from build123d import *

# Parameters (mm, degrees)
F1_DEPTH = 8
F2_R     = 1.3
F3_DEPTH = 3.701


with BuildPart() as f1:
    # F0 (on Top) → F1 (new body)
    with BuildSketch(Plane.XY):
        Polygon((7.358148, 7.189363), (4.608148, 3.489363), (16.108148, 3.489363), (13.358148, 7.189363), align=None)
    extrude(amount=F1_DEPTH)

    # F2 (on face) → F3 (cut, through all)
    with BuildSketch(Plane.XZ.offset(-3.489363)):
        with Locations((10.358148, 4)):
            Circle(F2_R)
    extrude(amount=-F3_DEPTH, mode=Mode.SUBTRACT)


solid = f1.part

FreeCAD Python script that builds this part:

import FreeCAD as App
import Part
import Sketcher

V = App.Vector
Q = App.Units.Quantity


def add_polygon(sketch, points):
    """Adds a closed chain of lines whose ends are joined by coincident constraints."""
    first, n = sketch.GeometryCount, len(points)
    for a, b in zip(points, points[1:] + points[:1]):
        sketch.addGeometry(Part.LineSegment(App.Vector(*a, 0), App.Vector(*b, 0)), False)
    for i in range(n):
        sketch.addConstraint(Sketcher.Constraint("Coincident", first + i, 2, first + (i + 1) % n, 1))

doc = App.newDocument("Part")
params = doc.addObject("Spreadsheet::Sheet", "Params")
for row, (alias, value) in enumerate([
    ("sketch1_width", "6 mm"),
    ("sketch1_width2", "11.5 mm"),
    ("pad1_length", "8 mm"),
    ("sketch2_diameter", "2.6 mm"),
], start=1):
    params.set(f"A{row}", alias)
    params.set(f"B{row}", "=" + value)
    params.setAlias(f"B{row}", alias)

body = doc.addObject("PartDesign::Body", "Body")

# Sketch on XY plane
sketch1 = doc.addObject("Sketcher::SketchObject", "Sketch")
body.addObject(sketch1)
sketch1.AttachmentSupport = (doc.XY_Plane, [""])
sketch1.MapMode = "FlatFace"
add_polygon(sketch1, [(7.358148, 7.189363), (4.608148, 3.489363), (16.108148, 3.489363), (13.358148, 7.189363)])  # lines 0-3
sketch1.addConstraint([
    Sketcher.Constraint("Horizontal", 1),
    Sketcher.Constraint("Horizontal", 3),
    Sketcher.Constraint("Equal", 0, 2),
    Sketcher.Constraint("DistanceX", 3, 2, 3, 1, Q("6 mm")),
    Sketcher.Constraint("DistanceX", 1, 1, 1, 2, Q("11.5 mm")),
    Sketcher.Constraint("DistanceY", 1, 2, 2, 2, Q("3.7 mm")),
    Sketcher.Constraint("DistanceX", -1, 1, 1, 2, Q("16.108148 mm")),
    Sketcher.Constraint("DistanceY", -1, 1, 0, 2, Q("3.489363 mm")),
])
sketch1.setExpression("Constraints[7]", "Params.sketch1_width")
sketch1.setExpression("Constraints[8]", "Params.sketch1_width2")
pad1 = doc.addObject("PartDesign::Pad", "Pad")
body.addObject(pad1)
pad1.Profile = sketch1
pad1.setExpression("Length", "Params.pad1_length")

# Sketch on XZ plane
sketch2 = doc.addObject("Sketcher::SketchObject", "Sketch001")
body.addObject(sketch2)
sketch2.AttachmentSupport = (doc.XZ_Plane, [""])
sketch2.MapMode = "FlatFace"
sketch2.AttachmentOffset = App.Placement(V(0, 0, -3.489363), App.Rotation())
sketch2.addGeometry(Part.Circle(V(10.358148, 4, 0), V(0, 0, 1), 1.3), False)
sketch2.addConstraint([
    Sketcher.Constraint("Diameter", 0, Q("2.6 mm")),
    Sketcher.Constraint("DistanceY", -1, 1, 0, 3, Q("4 mm")),
    Sketcher.Constraint("DistanceX", -1, 1, 0, 3, Q("10.358148 mm")),
])
sketch2.setExpression("Constraints[0]", "Params.sketch2_diameter")
pocket1 = doc.addObject("PartDesign::Pocket", "Pocket")
body.addObject(pocket1)
pocket1.Profile = sketch2
pocket1.Type = "ThroughAll"

doc.recompute()
